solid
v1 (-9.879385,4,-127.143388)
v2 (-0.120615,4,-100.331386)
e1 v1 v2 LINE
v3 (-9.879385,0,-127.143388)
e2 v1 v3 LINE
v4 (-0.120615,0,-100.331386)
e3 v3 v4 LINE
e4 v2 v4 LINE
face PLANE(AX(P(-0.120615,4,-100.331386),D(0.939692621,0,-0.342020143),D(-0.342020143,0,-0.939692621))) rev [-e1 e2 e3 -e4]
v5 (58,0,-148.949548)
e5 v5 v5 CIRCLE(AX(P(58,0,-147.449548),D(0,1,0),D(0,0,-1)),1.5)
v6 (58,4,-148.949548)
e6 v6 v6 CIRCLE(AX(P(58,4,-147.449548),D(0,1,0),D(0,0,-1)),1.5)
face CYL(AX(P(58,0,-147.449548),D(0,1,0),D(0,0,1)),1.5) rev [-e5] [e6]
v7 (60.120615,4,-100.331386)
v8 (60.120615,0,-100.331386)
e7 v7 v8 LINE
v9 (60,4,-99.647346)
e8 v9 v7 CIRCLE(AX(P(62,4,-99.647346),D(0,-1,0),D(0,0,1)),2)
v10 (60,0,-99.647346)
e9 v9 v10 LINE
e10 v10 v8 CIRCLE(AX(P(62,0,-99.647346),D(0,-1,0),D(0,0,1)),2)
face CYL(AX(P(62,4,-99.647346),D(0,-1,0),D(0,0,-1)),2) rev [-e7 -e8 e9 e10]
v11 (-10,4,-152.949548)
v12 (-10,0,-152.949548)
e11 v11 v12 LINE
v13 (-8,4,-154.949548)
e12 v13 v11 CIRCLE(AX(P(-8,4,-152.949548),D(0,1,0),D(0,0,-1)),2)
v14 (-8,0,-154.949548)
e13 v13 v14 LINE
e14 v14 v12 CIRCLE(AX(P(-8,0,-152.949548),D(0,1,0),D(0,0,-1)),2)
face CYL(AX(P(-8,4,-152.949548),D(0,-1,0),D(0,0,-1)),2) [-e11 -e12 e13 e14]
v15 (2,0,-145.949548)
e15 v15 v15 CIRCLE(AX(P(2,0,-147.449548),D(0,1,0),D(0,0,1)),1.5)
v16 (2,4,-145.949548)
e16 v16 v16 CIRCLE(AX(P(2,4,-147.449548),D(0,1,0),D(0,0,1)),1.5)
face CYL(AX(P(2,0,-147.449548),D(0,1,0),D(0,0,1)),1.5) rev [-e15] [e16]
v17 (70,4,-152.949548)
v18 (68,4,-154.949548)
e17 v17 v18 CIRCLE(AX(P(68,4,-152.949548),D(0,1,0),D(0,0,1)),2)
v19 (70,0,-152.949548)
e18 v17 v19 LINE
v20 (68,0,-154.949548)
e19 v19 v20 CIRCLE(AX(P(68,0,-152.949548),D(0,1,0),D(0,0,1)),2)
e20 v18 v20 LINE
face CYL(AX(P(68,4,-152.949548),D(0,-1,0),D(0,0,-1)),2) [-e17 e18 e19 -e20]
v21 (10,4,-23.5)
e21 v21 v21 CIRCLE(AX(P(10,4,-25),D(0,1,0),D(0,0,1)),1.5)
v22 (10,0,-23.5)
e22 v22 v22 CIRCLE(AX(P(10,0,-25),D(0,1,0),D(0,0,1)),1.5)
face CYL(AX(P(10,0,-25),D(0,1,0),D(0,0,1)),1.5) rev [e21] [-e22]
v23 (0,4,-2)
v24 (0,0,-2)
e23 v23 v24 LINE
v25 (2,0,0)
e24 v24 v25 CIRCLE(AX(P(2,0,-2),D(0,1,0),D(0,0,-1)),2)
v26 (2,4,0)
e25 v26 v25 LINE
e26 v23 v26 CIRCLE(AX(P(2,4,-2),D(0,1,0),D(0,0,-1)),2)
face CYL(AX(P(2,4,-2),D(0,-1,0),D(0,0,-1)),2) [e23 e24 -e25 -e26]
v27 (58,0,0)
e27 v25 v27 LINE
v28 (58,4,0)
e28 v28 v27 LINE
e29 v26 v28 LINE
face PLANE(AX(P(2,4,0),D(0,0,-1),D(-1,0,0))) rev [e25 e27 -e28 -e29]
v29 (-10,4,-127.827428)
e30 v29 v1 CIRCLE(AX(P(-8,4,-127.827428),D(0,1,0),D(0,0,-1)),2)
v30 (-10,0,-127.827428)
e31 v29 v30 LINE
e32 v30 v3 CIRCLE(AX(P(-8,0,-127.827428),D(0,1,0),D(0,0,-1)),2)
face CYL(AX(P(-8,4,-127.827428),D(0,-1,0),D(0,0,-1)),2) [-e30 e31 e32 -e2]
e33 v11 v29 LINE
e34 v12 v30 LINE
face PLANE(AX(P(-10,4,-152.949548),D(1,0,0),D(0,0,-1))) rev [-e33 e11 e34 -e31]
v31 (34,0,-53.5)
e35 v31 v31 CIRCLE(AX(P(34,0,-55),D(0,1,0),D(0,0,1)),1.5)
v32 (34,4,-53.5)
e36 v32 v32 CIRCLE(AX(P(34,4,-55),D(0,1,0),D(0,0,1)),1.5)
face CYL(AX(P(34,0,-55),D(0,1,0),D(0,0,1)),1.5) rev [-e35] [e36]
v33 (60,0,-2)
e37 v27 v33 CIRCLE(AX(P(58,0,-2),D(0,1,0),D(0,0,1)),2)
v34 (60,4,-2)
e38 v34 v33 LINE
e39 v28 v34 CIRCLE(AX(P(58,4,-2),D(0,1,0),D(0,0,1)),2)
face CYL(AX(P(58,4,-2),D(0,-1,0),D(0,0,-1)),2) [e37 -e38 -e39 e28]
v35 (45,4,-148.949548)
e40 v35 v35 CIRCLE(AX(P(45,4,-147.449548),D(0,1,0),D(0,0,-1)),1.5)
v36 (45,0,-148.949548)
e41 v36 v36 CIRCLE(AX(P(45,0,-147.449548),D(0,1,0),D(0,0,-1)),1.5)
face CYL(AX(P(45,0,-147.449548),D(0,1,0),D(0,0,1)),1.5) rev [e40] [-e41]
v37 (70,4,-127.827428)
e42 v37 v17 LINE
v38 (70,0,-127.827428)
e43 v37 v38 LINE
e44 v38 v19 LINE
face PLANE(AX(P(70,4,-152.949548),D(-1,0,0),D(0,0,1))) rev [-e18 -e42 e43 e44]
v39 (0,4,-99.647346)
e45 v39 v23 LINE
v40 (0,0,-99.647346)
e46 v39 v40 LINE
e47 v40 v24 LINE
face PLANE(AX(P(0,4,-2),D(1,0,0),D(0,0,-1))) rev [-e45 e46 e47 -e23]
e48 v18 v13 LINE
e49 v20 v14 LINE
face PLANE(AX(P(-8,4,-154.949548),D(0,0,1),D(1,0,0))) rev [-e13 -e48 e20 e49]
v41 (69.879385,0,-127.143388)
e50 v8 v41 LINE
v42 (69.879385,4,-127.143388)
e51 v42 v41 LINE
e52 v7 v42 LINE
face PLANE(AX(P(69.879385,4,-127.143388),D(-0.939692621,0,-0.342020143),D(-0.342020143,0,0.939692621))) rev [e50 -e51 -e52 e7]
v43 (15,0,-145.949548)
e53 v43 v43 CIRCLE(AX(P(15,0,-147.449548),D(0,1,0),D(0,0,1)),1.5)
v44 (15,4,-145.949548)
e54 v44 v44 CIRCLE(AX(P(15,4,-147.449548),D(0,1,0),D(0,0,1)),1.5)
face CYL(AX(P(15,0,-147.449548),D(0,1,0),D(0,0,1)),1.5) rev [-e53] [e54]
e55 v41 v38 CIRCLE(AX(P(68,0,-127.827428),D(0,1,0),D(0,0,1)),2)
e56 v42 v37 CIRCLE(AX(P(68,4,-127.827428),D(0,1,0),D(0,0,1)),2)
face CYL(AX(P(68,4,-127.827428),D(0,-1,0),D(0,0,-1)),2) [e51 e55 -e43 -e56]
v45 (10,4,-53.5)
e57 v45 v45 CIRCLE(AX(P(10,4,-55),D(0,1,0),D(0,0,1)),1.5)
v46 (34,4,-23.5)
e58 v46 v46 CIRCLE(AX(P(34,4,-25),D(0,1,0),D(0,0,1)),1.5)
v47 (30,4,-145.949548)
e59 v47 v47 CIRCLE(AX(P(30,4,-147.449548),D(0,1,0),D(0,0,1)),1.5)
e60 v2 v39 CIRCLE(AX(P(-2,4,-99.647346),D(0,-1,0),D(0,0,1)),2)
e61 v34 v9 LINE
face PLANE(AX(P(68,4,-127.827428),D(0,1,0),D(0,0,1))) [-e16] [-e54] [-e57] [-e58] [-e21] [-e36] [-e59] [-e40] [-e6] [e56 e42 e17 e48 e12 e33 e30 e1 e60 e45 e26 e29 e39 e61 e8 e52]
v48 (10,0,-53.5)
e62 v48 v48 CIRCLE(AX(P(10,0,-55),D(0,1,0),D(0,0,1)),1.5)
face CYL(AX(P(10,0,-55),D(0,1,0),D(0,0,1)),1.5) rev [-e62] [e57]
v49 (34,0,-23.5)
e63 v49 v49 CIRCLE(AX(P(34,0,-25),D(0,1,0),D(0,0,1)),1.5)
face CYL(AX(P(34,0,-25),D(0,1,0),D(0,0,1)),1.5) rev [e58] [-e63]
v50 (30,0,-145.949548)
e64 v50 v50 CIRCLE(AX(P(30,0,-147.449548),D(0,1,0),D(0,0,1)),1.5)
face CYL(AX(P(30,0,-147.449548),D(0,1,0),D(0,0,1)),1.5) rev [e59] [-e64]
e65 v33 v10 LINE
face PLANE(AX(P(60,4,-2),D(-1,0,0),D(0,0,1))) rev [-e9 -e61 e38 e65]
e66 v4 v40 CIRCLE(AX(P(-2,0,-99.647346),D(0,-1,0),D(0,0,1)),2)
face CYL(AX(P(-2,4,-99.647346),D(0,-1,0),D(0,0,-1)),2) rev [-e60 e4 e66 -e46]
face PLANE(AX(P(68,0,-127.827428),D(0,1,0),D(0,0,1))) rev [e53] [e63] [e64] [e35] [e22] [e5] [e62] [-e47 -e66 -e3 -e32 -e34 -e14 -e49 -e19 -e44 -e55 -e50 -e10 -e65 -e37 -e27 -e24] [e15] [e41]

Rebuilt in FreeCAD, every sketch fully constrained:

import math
import FreeCAD as App
import Part
import Sketcher
from FreeCAD import Vector
Q = App.Units.Quantity

doc = App.newDocument("Part")
body = doc.addObject("PartDesign::Body", "Body")

# Sketch on XZ plane
sketch1 = body.newObject("Sketcher::SketchObject", "Sketch")
sketch1.AttachmentSupport = (doc.getObject("XZ_Plane"), [""])
sketch1.MapMode = "FlatFace"
sketch1.addGeometry([
    Part.LineSegment(Vector(-9.9, -127.1, 0), Vector(-0.1, -100.3, 0)),  # 0
    Part.ArcOfCircle(Part.Circle(Vector(-2, -99.6, 0), Vector(0, 0, 1), 2), math.radians(-20), math.radians(0)),  # 1
    Part.LineSegment(Vector(0, -99.6, 0), Vector(0, -2, 0)),  # 2
    Part.ArcOfCircle(Part.Circle(Vector(2, -2, 0), Vector(0, 0, 1), 2), math.radians(90), math.radians(180)),  # 3
    Part.LineSegment(Vector(2, 0, 0), Vector(58, 0, 0)),  # 4
    Part.ArcOfCircle(Part.Circle(Vector(58, -2, 0), Vector(0, 0, 1), 2), math.radians(0), math.radians(90)),  # 5
    Part.LineSegment(Vector(60, -2, 0), Vector(60, -99.6, 0)),  # 6
    Part.ArcOfCircle(Part.Circle(Vector(62, -99.6, 0), Vector(0, 0, 1), 2), math.radians(-180), math.radians(-160)),  # 7
    Part.LineSegment(Vector(60.1, -100.3, 0), Vector(69.9, -127.1, 0)),  # 8
    Part.ArcOfCircle(Part.Circle(Vector(68, -127.8, 0), Vector(0, 0, 1), 2), math.radians(0), math.radians(20)),  # 9
    Part.LineSegment(Vector(70, -127.8, 0), Vector(70, -152.9, 0)),  # 10
    Part.ArcOfCircle(Part.Circle(Vector(68, -152.9, 0), Vector(0, 0, 1), 2), math.radians(-90), math.radians(0)),  # 11
    Part.LineSegment(Vector(68, -154.9, 0), Vector(-8, -154.9, 0)),  # 12
    Part.ArcOfCircle(Part.Circle(Vector(-8, -152.9, 0), Vector(0, 0, 1), 2), math.radians(-180), math.radians(-90)),  # 13
    Part.LineSegment(Vector(-10, -152.9, 0), Vector(-10, -127.8, 0)),  # 14
    Part.ArcOfCircle(Part.Circle(Vector(-8, -127.8, 0), Vector(0, 0, 1), 2), math.radians(160), math.radians(180)),  # 15
], False)
sketch1.addConstraint([
    Sketcher.Constraint("Tangent", 0, 2, 1, 1),
    Sketcher.Constraint("Tangent", 1, 2, 2, 1),
    Sketcher.Constraint("Tangent", 2, 2, 3, 2),
    Sketcher.Constraint("Tangent", 3, 1, 4, 1),
    Sketcher.Constraint("Tangent", 4, 2, 5, 2),
    Sketcher.Constraint("Tangent", 5, 1, 6, 1),
    Sketcher.Constraint("Tangent", 6, 2, 7, 1),
    Sketcher.Constraint("Tangent", 7, 2, 8, 1),
    Sketcher.Constraint("Tangent", 8, 2, 9, 2),
    Sketcher.Constraint("Tangent", 9, 1, 10, 1),
    Sketcher.Constraint("Tangent", 10, 2, 11, 2),
    Sketcher.Constraint("Tangent", 11, 1, 12, 1),
    Sketcher.Constraint("Tangent", 12, 2, 13, 2),
    Sketcher.Constraint("Tangent", 13, 1, 14, 1),
    Sketcher.Constraint("Tangent", 14, 2, 15, 2),
    Sketcher.Constraint("Tangent", 15, 1, 0, 1),
    Sketcher.Constraint("Vertical", 2),
    Sketcher.Constraint("Horizontal", 4),
    Sketcher.Constraint("Vertical", 6),
    Sketcher.Constraint("Vertical", 10),
    Sketcher.Constraint("Horizontal", 12),
    Sketcher.Constraint("Vertical", 14),
    Sketcher.Constraint("Equal", 1, 3),
    Sketcher.Constraint("Equal", 3, 5),
    Sketcher.Constraint("Equal", 5, 7),
    Sketcher.Constraint("Equal", 7, 9),
    Sketcher.Constraint("Equal", 9, 11),
    Sketcher.Constraint("Equal", 11, 13),
    Sketcher.Constraint("Equal", 13, 15),
    Sketcher.Constraint("PointOnObject", 1, 2, -2),
    Sketcher.Constraint("PointOnObject", 3, 1, -1),
    Sketcher.Constraint("Horizontal", 1, 3, 7, 3),
    Sketcher.Constraint("Horizontal", 9, 3, 15, 3),
    Sketcher.Constraint("Horizontal", 0, 2, 7, 2),
    Sketcher.Constraint("Radius", 1, Q("2 mm")),
    Sketcher.Constraint("DistanceX", 4, 1, 4, 2, Q("56 mm")),
    Sketcher.Constraint("DistanceX", 12, 2, 12, 1, Q("76 mm")),
    Sketcher.Constraint("Angle", 0, Q("70 deg")),
    Sketcher.Constraint("DistanceY", 10, 2, 10, 1, Q("25.12212 mm")),
    Sketcher.Constraint("DistanceY", 2, 1, 2, 2, Q("97.647346 mm")),
])
pad1 = body.newObject("PartDesign::Pad", "Pad")
pad1.Profile = sketch1
pad1.Length = 4
pad1.Reversed = True

# Sketch on XZ plane
sketch2 = body.newObject("Sketcher::SketchObject", "Sketch001")
sketch2.AttachmentSupport = (doc.getObject("XZ_Plane"), [""])
sketch2.MapMode = "FlatFace"
sketch2.AttachmentOffset = App.Placement(Vector(0, 0, -4), App.Rotation())
sketch2.addGeometry([
    Part.Circle(Vector(10, -25, 0), Vector(0, 0, 1), 1.5),
    Part.Circle(Vector(34, -25, 0), Vector(0, 0, 1), 1.5),
    Part.Circle(Vector(34, -55, 0), Vector(0, 0, 1), 1.5),
    Part.Circle(Vector(10, -55, 0), Vector(0, 0, 1), 1.5),
], False)
sketch2.addConstraint([
    Sketcher.Constraint("Equal", 0, 1),
    Sketcher.Constraint("Equal", 1, 2),
    Sketcher.Constraint("Equal", 2, 3),
    Sketcher.Constraint("Horizontal", 0, 3, 1, 3),
    Sketcher.Constraint("Horizontal", 2, 3, 3, 3),
    Sketcher.Constraint("Vertical", 1, 3, 2, 3),
    Sketcher.Constraint("Vertical", 0, 3, 3, 3),
    Sketcher.Constraint("Diameter", 0, Q("3 mm")),
    Sketcher.Constraint("DistanceX", -1, 1, 0, 3, Q("10 mm")),
    Sketcher.Constraint("DistanceY", 0, 3, -1, 1, Q("25 mm")),
    Sketcher.Constraint("DistanceX", -1, 1, 1, 3, Q("34 mm")),
    Sketcher.Constraint("DistanceY", 2, 3, -1, 1, Q("55 mm")),
])
pocket1 = body.newObject("PartDesign::Pocket", "Pocket")
pocket1.Profile = sketch2
pocket1.Length = 4
pocket1.Reversed = True

# Sketch on XZ plane
sketch3 = body.newObject("Sketcher::SketchObject", "Sketch002")
sketch3.AttachmentSupport = (doc.getObject("XZ_Plane"), [""])
sketch3.MapMode = "FlatFace"
sketch3.AttachmentOffset = App.Placement(Vector(0, 0, -4), App.Rotation())
sketch3.addGeometry([
    Part.Circle(Vector(2, -147.4, 0), Vector(0, 0, 1), 1.5),  # 0
    Part.Circle(Vector(15, -147.4, 0), Vector(0, 0, 1), 1.5),  # 1
    Part.Circle(Vector(45, -147.4, 0), Vector(0, 0, 1), 1.5),  # 2
    Part.Circle(Vector(58, -147.4, 0), Vector(0, 0, 1), 1.5),  # 3
    Part.Circle(Vector(30, -147.4, 0), Vector(0, 0, 1), 1.5),  # 4
], False)
sketch3.addConstraint([
    Sketcher.Constraint("Equal", 0, 1),
    Sketcher.Constraint("Equal", 1, 2),
    Sketcher.Constraint("Equal", 2, 3),
    Sketcher.Constraint("Equal", 3, 4),
    Sketcher.Constraint("Horizontal", 0, 3, 1, 3),
    Sketcher.Constraint("Horizontal", 1, 3, 2, 3),
    Sketcher.Constraint("Horizontal", 2, 3, 3, 3),
    Sketcher.Constraint("Horizontal", 3, 3, 4, 3),
    Sketcher.Constraint("Diameter", 0, Q("3 mm")),
    Sketcher.Constraint("DistanceX", -1, 1, 0, 3, Q("2 mm")),
    Sketcher.Constraint("DistanceX", -1, 1, 1, 3, Q("15 mm")),
    Sketcher.Constraint("DistanceX", -1, 1, 2, 3, Q("45 mm")),
    Sketcher.Constraint("DistanceX", -1, 1, 3, 3, Q("58 mm")),
    Sketcher.Constraint("DistanceX", -1, 1, 4, 3, Q("30 mm")),
    Sketcher.Constraint("DistanceY", 0, 3, -1, 1, Q("147.449548 mm")),
])
pocket2 = body.newObject("PartDesign::Pocket", "Pocket001")
pocket2.Profile = sketch3
pocket2.Length = 4
pocket2.Reversed = True

doc.recompute()
